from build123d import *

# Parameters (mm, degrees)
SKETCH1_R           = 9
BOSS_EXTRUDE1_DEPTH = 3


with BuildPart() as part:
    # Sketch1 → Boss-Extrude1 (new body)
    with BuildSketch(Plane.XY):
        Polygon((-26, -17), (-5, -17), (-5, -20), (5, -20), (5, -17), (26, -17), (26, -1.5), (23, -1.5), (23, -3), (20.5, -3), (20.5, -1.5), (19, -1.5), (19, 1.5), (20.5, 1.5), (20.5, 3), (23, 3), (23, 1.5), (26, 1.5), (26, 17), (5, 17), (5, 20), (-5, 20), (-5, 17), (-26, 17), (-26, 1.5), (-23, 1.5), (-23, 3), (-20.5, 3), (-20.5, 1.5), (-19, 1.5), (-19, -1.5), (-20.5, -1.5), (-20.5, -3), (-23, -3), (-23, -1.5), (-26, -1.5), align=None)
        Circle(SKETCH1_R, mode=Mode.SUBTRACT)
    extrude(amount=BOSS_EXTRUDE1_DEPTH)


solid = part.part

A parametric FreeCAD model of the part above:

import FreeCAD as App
import Part
import Sketcher

V = App.Vector


def add_polygon(sketch, points):
    """Adds a closed chain of lines whose ends are joined by coincident constraints."""
    first, n = sketch.GeometryCount, len(points)
    for a, b in zip(points, points[1:] + points[:1]):
        sketch.addGeometry(Part.LineSegment(App.Vector(*a, 0), App.Vector(*b, 0)), False)
    for i in range(n):
        sketch.addConstraint(Sketcher.Constraint("Coincident", first + i, 2, first + (i + 1) % n, 1))

doc = App.newDocument("Part")
body = doc.addObject("PartDesign::Body", "Body")

sketch1 = body.newObject("Sketcher::SketchObject", "Sketch")
sketch1.AttachmentSupport = (doc.getObject("XY_Plane"), [""])
sketch1.MapMode = "FlatFace"
add_polygon(sketch1, [(-26, -17), (-5, -17), (-5, -20), (5, -20), (5, -17), (26, -17), (26, -1.5), (23, -1.5), (23, -3), (20.5, -3), (20.5, -1.5), (19, -1.5), (19, 1.5), (20.5, 1.5), (20.5, 3), (23, 3), (23, 1.5), (26, 1.5), (26, 17), (5, 17), (5, 20), (-5, 20), (-5, 17), (-26, 17), (-26, 1.5), (-23, 1.5), (-23, 3), (-20.5, 3), (-20.5, 1.5), (-19, 1.5), (-19, -1.5), (-20.5, -1.5), (-20.5, -3), (-23, -3), (-23, -1.5), (-26, -1.5)])
sketch1.addGeometry(Part.Circle(V(0, 0, 0), V(0, 0, 1), 9), False)
sketch1.addConstraint(Sketcher.Constraint("Horizontal", 0))
sketch1.addConstraint(Sketcher.Constraint("Vertical", 1))
sketch1.addConstraint(Sketcher.Constraint("Horizontal", 2))
sketch1.addConstraint(Sketcher.Constraint("Vertical", 3))
sketch1.addConstraint(Sketcher.Constraint("Horizontal", 4))
sketch1.addConstraint(Sketcher.Constraint("Vertical", 5))
sketch1.addConstraint(Sketcher.Constraint("Horizontal", 6))
sketch1.addConstraint(Sketcher.Constraint("Vertical", 7))
sketch1.addConstraint(Sketcher.Constraint("Horizontal", 8))
sketch1.addConstraint(Sketcher.Constraint("Vertical", 9))
sketch1.addConstraint(Sketcher.Constraint("Horizontal", 10))
sketch1.addConstraint(Sketcher.Constraint("Vertical", 11))
sketch1.addConstraint(Sketcher.Constraint("Horizontal", 12))
sketch1.addConstraint(Sketcher.Constraint("Vertical", 13))
sketch1.addConstraint(Sketcher.Constraint("Horizontal", 14))
sketch1.addConstraint(Sketcher.Constraint("Vertical", 15))
sketch1.addConstraint(Sketcher.Constraint("Horizontal", 16))
sketch1.addConstraint(Sketcher.Constraint("Vertical", 17))
sketch1.addConstraint(Sketcher.Constraint("Horizontal", 18))
sketch1.addConstraint(Sketcher.Constraint("Vertical", 19))
sketch1.addConstraint(Sketcher.Constraint("Horizontal", 20))
sketch1.addConstraint(Sketcher.Constraint("Vertical", 21))
sketch1.addConstraint(Sketcher.Constraint("Horizontal", 22))
sketch1.addConstraint(Sketcher.Constraint("Vertical", 23))
sketch1.addConstraint(Sketcher.Constraint("Horizontal", 24))
sketch1.addConstraint(Sketcher.Constraint("Vertical", 25))
sketch1.addConstraint(Sketcher.Constraint("Horizontal", 26))
sketch1.addConstraint(Sketcher.Constraint("Vertical", 27))
sketch1.addConstraint(Sketcher.Constraint("Horizontal", 28))
sketch1.addConstraint(Sketcher.Constraint("Vertical", 29))
sketch1.addConstraint(Sketcher.Constraint("Horizontal", 30))
sketch1.addConstraint(Sketcher.Constraint("Vertical", 31))
sketch1.addConstraint(Sketcher.Constraint("Horizontal", 32))
sketch1.addConstraint(Sketcher.Constraint("Vertical", 33))
sketch1.addConstraint(Sketcher.Constraint("Horizontal", 34))
sketch1.addConstraint(Sketcher.Constraint("Vertical", 35))
sketch1.addConstraint(Sketcher.Constraint("Coincident", 36, 3, -1, 1))
sketch1.addConstraint(Sketcher.Constraint("Symmetric", 0, 2, 18, 2, -1, 1))
sketch1.addConstraint(Sketcher.Constraint("Symmetric", 2, 2, 20, 2, -1, 1))
sketch1.addConstraint(Sketcher.Constraint("Symmetric", 4, 2, 22, 2, -1, 1))
sketch1.addConstraint(Sketcher.Constraint("Symmetric", 6, 2, 24, 2, -1, 1))
sketch1.addConstraint(Sketcher.Constraint("Symmetric", 8, 2, 26, 2, -1, 1))
sketch1.addConstraint(Sketcher.Constraint("Symmetric", 10, 2, 28, 2, -1, 1))
sketch1.addConstraint(Sketcher.Constraint("Symmetric", 12, 2, 30, 2, -1, 1))
sketch1.addConstraint(Sketcher.Constraint("Symmetric", 14, 2, 32, 2, -1, 1))
sketch1.addConstraint(Sketcher.Constraint("Symmetric", 16, 2, 34, 2, -1, 1))
sketch1.addConstraint(Sketcher.Constraint("Symmetric", 0, 2, 3, 2, -2))
sketch1.addConstraint(Sketcher.Constraint("Symmetric", 16, 2, 23, 2, -2))
sketch1.addConstraint(Sketcher.Constraint("Symmetric", 14, 2, 25, 2, -2))
sketch1.addConstraint(Sketcher.Constraint("Symmetric", 12, 2, 27, 2, -2))
sketch1.addConstraint(Sketcher.Constraint("Horizontal", 6, 2, 9, 2))
sketch1.addConstraint(Sketcher.Constraint("Equal", 34, 1))
sketch1.addConstraint(Sketcher.Constraint("Equal", 30, 7))
sketch1.addConstraint(Sketcher.Constraint("Equal", 3, 11))
sketch1.addConstraint(Sketcher.Constraint("Diameter", 36, 18.0))
sketch1.addConstraint(Sketcher.Constraint("DistanceX", 0, 1, 0, 2, 21.0))
sketch1.addConstraint(Sketcher.Constraint("DistanceX", 2, 1, 2, 2, 10.0))
sketch1.addConstraint(Sketcher.Constraint("DistanceX", 6, 2, 6, 1, 3.0))
sketch1.addConstraint(Sketcher.Constraint("DistanceX", 8, 2, 8, 1, 2.5))
sketch1.addConstraint(Sketcher.Constraint("DistanceX", 10, 2, 10, 1, 1.5))
sketch1.addConstraint(Sketcher.Constraint("DistanceY", 5, 1, 5, 2, 15.5))
pad1 = body.newObject("PartDesign::Pad", "Pad")
pad1.Profile = sketch1
pad1.Length = 3

doc.recompute()
